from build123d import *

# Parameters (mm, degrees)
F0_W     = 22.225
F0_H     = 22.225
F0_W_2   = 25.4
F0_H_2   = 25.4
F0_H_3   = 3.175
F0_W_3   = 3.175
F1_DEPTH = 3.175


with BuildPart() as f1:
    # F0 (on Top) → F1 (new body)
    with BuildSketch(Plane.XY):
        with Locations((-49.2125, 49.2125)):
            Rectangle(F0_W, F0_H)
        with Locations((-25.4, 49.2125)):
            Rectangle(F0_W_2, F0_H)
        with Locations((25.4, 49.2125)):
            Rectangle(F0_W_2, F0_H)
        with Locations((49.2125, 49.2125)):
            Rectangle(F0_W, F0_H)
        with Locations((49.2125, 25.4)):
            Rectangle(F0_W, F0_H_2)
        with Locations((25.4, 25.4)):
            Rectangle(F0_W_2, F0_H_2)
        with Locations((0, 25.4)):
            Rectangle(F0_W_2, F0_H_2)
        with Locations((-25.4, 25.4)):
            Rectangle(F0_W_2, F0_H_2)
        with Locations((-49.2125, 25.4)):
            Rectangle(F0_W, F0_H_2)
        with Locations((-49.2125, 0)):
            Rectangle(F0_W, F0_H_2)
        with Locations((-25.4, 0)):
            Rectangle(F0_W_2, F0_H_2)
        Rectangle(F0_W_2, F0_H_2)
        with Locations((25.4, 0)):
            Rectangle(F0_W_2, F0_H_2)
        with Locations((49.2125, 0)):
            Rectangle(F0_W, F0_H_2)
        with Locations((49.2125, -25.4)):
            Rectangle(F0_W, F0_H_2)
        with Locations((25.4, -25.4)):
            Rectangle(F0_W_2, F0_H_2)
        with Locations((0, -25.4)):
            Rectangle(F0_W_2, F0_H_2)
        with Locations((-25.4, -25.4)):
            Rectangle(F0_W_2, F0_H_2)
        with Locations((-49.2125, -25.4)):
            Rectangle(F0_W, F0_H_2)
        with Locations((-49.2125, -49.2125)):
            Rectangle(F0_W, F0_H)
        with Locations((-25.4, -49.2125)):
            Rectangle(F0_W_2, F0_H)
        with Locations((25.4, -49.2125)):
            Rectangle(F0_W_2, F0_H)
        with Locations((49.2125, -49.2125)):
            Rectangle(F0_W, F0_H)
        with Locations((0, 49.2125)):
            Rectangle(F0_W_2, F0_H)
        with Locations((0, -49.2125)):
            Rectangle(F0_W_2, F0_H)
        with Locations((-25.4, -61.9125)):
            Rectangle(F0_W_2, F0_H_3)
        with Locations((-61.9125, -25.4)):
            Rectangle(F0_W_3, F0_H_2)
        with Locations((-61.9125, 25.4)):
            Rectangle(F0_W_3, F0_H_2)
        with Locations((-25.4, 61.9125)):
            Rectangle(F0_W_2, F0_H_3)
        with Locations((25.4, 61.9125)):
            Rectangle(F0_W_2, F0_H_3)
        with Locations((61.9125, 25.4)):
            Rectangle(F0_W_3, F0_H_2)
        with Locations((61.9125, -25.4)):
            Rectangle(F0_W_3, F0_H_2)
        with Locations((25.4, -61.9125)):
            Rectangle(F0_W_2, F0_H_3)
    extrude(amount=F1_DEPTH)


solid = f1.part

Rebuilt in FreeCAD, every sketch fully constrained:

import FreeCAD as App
import Part
import Sketcher
from FreeCAD import Vector
Q = App.Units.Quantity


def add_polygon(sketch, points):
    """Adds a closed chain of lines whose ends are joined by coincident constraints."""
    first, n = sketch.GeometryCount, len(points)
    for a, b in zip(points, points[1:] + points[:1]):
        sketch.addGeometry(Part.LineSegment(App.Vector(*a, 0), App.Vector(*b, 0)), False)
    for i in range(n):
        sketch.addConstraint(Sketcher.Constraint("Coincident", first + i, 2, first + (i + 1) % n, 1))

doc = App.newDocument("Part")
body = doc.addObject("PartDesign::Body", "Body")

sketch1 = doc.addObject("Sketcher::SketchObject", "Sketch")
body.addObject(sketch1)
sketch1.AttachmentSupport = (doc.XY_Plane, [""])
sketch1.MapMode = "FlatFace"
add_polygon(sketch1, [(-60.325, 60.325), (-60.325, 38.1), (-63.5, 38.1), (-63.5, 12.7), (-60.325, 12.7), (-60.325, -12.7), (-63.5, -12.7), (-63.5, -38.1), (-60.325, -38.1), (-60.325, -60.325), (-38.1, -60.325), (-38.1, -63.5), (-12.7, -63.5), (-12.7, -60.325), (12.7, -60.325), (12.7, -63.5), (38.1, -63.5), (38.1, -60.325), (60.325, -60.325), (60.325, -38.1), (63.5, -38.1), (63.5, -12.7), (60.325, -12.7), (60.325, 12.7), (63.5, 12.7), (63.5, 38.1), (60.325, 38.1), (60.325, 60.325), (38.1, 60.325), (38.1, 63.5), (12.7, 63.5), (12.7, 60.325), (-12.7, 60.325), (-12.7, 63.5), (-38.1, 63.5), (-38.1, 60.325)])
sketch1.addConstraint(Sketcher.Constraint("Vertical", 0))
sketch1.addConstraint(Sketcher.Constraint("Horizontal", 1))
sketch1.addConstraint(Sketcher.Constraint("Vertical", 2))
sketch1.addConstraint(Sketcher.Constraint("Horizontal", 3))
sketch1.addConstraint(Sketcher.Constraint("Vertical", 4))
sketch1.addConstraint(Sketcher.Constraint("Horizontal", 5))
sketch1.addConstraint(Sketcher.Constraint("Vertical", 6))
sketch1.addConstraint(Sketcher.Constraint("Horizontal", 7))
sketch1.addConstraint(Sketcher.Constraint("Vertical", 8))
sketch1.addConstraint(Sketcher.Constraint("Horizontal", 9))
sketch1.addConstraint(Sketcher.Constraint("Vertical", 10))
sketch1.addConstraint(Sketcher.Constraint("Horizontal", 11))
sketch1.addConstraint(Sketcher.Constraint("Vertical", 12))
sketch1.addConstraint(Sketcher.Constraint("Horizontal", 13))
sketch1.addConstraint(Sketcher.Constraint("Vertical", 14))
sketch1.addConstraint(Sketcher.Constraint("Horizontal", 15))
sketch1.addConstraint(Sketcher.Constraint("Vertical", 16))
sketch1.addConstraint(Sketcher.Constraint("Horizontal", 17))
sketch1.addConstraint(Sketcher.Constraint("Vertical", 18))
sketch1.addConstraint(Sketcher.Constraint("Horizontal", 19))
sketch1.addConstraint(Sketcher.Constraint("Vertical", 20))
sketch1.addConstraint(Sketcher.Constraint("Horizontal", 21))
sketch1.addConstraint(Sketcher.Constraint("Vertical", 22))
sketch1.addConstraint(Sketcher.Constraint("Horizontal", 23))
sketch1.addConstraint(Sketcher.Constraint("Vertical", 24))
sketch1.addConstraint(Sketcher.Constraint("Horizontal", 25))
sketch1.addConstraint(Sketcher.Constraint("Vertical", 26))
sketch1.addConstraint(Sketcher.Constraint("Horizontal", 27))
sketch1.addConstraint(Sketcher.Constraint("Vertical", 28))
sketch1.addConstraint(Sketcher.Constraint("Horizontal", 29))
sketch1.addConstraint(Sketcher.Constraint("Vertical", 30))
sketch1.addConstraint(Sketcher.Constraint("Horizontal", 31))
sketch1.addConstraint(Sketcher.Constraint("Vertical", 32))
sketch1.addConstraint(Sketcher.Constraint("Horizontal", 33))
sketch1.addConstraint(Sketcher.Constraint("Vertical", 34))
sketch1.addConstraint(Sketcher.Constraint("Horizontal", 35))
sketch1.addConstraint(Sketcher.Constraint("Symmetric", 0, 2, 18, 2, -1, 1))
sketch1.addConstraint(Sketcher.Constraint("Symmetric", 2, 2, 20, 2, -1, 1))
sketch1.addConstraint(Sketcher.Constraint("Symmetric", 4, 2, 22, 2, -1, 1))
sketch1.addConstraint(Sketcher.Constraint("Symmetric", 6, 2, 24, 2, -1, 1))
sketch1.addConstraint(Sketcher.Constraint("Symmetric", 8, 2, 26, 2, -1, 1))
sketch1.addConstraint(Sketcher.Constraint("Symmetric", 10, 2, 28, 2, -1, 1))
sketch1.addConstraint(Sketcher.Constraint("Symmetric", 12, 2, 30, 2, -1, 1))
sketch1.addConstraint(Sketcher.Constraint("Symmetric", 14, 2, 32, 2, -1, 1))
sketch1.addConstraint(Sketcher.Constraint("Symmetric", 16, 2, 34, 2, -1, 1))
sketch1.addConstraint(Sketcher.Constraint("Symmetric", 11, 2, 14, 2, -2))
sketch1.addConstraint(Sketcher.Constraint("Symmetric", 9, 2, 16, 2, -2))
sketch1.addConstraint(Sketcher.Constraint("Symmetric", 7, 2, 18, 2, -2))
sketch1.addConstraint(Sketcher.Constraint("Symmetric", 5, 2, 20, 2, -2))
sketch1.addConstraint(Sketcher.Constraint("Horizontal", 9, 2, 12, 2))
sketch1.addConstraint(Sketcher.Constraint("Vertical", 0, 2, 3, 2))
sketch1.addConstraint(Sketcher.Constraint("Equal", 11, 13))
sketch1.addConstraint(Sketcher.Constraint("Equal", 35, 0))
sketch1.addConstraint(Sketcher.Constraint("Equal", 33, 2))
sketch1.addConstraint(Sketcher.Constraint("Equal", 2, 4))
sketch1.addConstraint(Sketcher.Constraint("Equal", 25, 10))
sketch1.addConstraint(Sketcher.Constraint("DistanceX", 11, 1, 11, 2, Q("1 in")))
sketch1.addConstraint(Sketcher.Constraint("DistanceX", 6, 2, 9, 2, Q("1 in")))
sketch1.addConstraint(Sketcher.Constraint("DistanceX", 1, 2, 1, 1, Q("0.125 in")))
pad1 = doc.addObject("PartDesign::Pad", "Pad")
body.addObject(pad1)
pad1.Profile = sketch1
pad1.Length = Q("0.125 in")

doc.recompute()
